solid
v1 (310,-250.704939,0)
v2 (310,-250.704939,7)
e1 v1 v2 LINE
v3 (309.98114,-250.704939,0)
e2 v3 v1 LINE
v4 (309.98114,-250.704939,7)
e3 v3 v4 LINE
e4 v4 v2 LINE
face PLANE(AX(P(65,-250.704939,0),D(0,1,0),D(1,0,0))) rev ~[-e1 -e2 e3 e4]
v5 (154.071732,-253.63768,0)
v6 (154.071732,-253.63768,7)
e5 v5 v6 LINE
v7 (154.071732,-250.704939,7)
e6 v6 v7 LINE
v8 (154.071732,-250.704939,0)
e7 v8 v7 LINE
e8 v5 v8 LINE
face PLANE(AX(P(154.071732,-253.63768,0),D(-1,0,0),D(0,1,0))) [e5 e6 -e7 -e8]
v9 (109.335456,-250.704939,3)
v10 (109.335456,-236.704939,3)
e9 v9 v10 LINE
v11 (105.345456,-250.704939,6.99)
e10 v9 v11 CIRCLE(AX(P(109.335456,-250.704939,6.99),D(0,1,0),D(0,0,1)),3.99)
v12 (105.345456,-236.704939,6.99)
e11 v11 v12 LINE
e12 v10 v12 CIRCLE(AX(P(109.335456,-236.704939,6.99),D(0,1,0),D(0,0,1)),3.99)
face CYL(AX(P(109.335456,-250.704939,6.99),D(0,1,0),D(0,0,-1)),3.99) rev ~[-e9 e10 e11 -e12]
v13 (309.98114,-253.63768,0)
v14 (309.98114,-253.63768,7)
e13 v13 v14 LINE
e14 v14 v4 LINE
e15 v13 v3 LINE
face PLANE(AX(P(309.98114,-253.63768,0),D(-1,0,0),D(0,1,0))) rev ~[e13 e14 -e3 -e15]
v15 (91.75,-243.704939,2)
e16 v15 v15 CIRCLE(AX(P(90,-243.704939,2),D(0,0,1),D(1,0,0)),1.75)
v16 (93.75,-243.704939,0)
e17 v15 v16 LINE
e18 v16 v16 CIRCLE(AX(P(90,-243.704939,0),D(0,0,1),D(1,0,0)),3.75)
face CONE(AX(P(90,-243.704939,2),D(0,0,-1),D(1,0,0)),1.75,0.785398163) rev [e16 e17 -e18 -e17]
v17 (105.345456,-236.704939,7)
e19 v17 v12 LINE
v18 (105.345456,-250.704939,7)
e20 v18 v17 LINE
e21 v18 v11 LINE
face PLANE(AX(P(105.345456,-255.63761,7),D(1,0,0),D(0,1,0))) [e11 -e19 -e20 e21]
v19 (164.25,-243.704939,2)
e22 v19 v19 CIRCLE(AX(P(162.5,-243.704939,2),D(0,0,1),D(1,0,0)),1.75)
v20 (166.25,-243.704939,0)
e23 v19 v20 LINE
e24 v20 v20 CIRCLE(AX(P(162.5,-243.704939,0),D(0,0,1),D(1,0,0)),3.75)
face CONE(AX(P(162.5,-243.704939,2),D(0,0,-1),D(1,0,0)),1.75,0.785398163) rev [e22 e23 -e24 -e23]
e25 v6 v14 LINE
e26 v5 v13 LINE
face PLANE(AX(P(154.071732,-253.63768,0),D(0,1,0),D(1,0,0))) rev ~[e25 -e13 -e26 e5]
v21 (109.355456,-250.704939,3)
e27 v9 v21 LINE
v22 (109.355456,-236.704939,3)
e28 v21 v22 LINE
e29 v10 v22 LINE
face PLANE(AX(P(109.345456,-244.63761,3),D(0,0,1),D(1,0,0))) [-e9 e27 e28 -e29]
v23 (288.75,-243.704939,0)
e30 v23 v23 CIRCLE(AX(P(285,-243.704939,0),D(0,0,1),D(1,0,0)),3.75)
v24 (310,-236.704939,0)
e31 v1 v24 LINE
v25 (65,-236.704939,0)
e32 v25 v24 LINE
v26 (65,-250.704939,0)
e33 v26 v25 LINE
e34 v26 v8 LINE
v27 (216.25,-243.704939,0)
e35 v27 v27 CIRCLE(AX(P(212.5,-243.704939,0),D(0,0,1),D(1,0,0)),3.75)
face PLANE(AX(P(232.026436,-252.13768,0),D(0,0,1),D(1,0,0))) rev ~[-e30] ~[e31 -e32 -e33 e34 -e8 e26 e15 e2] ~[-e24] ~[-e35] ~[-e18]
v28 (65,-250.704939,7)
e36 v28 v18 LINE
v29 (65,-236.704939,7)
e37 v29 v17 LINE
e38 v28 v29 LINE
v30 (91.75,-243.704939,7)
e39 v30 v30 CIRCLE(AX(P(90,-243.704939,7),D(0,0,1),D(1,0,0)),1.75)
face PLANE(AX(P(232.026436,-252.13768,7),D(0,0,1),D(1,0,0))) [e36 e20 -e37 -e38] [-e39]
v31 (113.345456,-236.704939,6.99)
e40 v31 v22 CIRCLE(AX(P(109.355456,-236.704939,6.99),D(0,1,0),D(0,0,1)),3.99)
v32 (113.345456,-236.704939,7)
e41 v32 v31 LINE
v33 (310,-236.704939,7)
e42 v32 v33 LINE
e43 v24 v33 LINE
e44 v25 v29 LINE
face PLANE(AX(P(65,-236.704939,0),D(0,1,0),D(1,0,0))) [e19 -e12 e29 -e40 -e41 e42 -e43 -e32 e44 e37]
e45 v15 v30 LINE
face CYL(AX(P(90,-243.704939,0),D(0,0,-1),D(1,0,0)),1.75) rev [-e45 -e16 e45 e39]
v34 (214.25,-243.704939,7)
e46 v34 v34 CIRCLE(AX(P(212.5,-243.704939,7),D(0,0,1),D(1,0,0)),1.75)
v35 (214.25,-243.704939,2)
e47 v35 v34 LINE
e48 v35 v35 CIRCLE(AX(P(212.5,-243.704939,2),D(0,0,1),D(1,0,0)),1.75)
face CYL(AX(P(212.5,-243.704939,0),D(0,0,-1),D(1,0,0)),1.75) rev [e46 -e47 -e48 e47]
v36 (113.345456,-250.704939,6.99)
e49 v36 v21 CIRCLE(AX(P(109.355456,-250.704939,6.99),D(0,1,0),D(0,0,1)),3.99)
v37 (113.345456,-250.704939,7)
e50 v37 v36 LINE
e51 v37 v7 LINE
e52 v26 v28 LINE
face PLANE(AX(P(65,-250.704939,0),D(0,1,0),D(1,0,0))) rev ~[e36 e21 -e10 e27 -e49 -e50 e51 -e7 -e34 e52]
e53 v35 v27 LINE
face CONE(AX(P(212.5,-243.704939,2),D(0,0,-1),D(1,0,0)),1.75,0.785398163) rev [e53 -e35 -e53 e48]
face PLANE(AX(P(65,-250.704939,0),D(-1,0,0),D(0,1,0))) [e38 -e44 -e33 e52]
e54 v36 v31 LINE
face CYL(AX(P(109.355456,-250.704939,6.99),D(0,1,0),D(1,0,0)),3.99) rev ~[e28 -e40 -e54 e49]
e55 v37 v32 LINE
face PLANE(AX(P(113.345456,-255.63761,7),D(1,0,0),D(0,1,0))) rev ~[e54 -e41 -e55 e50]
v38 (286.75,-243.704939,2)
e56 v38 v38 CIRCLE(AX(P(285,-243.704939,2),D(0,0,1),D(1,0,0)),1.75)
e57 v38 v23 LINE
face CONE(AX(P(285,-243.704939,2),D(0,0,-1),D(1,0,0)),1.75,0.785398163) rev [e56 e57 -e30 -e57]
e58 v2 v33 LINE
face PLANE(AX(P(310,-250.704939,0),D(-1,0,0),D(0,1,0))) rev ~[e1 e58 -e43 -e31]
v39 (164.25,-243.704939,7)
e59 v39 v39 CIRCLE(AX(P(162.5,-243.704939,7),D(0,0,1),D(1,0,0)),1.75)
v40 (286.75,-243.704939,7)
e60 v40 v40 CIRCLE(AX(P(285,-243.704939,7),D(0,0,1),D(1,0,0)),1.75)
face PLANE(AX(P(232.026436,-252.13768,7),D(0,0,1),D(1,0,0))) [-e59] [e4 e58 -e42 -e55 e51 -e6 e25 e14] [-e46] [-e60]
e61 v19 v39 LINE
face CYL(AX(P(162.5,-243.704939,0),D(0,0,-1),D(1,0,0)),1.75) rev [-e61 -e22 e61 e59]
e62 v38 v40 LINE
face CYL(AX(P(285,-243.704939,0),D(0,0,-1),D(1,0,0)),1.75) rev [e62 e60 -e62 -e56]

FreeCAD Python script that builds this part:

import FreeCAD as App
import Part
import Sketcher
from FreeCAD import Vector


def edges_at(feature, points):
    """Names of the edges that pass closest to the given points."""
    edges = feature.Shape.Edges
    near = lambda p: min(range(len(edges)), key=lambda i: edges[i].distToShape(Part.Vertex(*p))[0])
    return sorted({f"Edge{near(p) + 1}" for p in points})


def add_polygon(sketch, points):
    """Adds a closed chain of lines whose ends are joined by coincident constraints."""
    first, n = sketch.GeometryCount, len(points)
    for a, b in zip(points, points[1:] + points[:1]):
        sketch.addGeometry(Part.LineSegment(App.Vector(*a, 0), App.Vector(*b, 0)), False)
    for i in range(n):
        sketch.addConstraint(Sketcher.Constraint("Coincident", first + i, 2, first + (i + 1) % n, 1))

doc = App.newDocument("Part")
body = doc.addObject("PartDesign::Body", "Body")

sketch1 = body.newObject("Sketcher::SketchObject", "Sketch")
sketch1.AttachmentSupport = (doc.getObject("XY_Plane"), [""])
sketch1.MapMode = "FlatFace"
add_polygon(sketch1, [(65, -236.7), (65, -250.7), (310, -250.7), (310, -236.7)])
sketch1.addGeometry(Part.Circle(Vector(90, -243.7, 0), Vector(0, 0, 1), 1.8), False)
sketch1.addGeometry(Part.Circle(Vector(162.5, -243.7, 0), Vector(0, 0, 1), 1.8), False)
sketch1.addGeometry(Part.Circle(Vector(212.5, -243.7, 0), Vector(0, 0, 1), 1.8), False)
sketch1.addGeometry(Part.Circle(Vector(285, -243.7, 0), Vector(0, 0, 1), 1.8), False)
sketch1.addConstraint([
    Sketcher.Constraint("Vertical", 0),
    Sketcher.Constraint("Horizontal", 1),
    Sketcher.Constraint("Vertical", 2),
    Sketcher.Constraint("Horizontal", 3),
    Sketcher.Constraint("Equal", 4, 5),
    Sketcher.Constraint("Equal", 5, 6),
    Sketcher.Constraint("Equal", 6, 7),
    Sketcher.Constraint("Horizontal", 4, 3, 5, 3),
    Sketcher.Constraint("Horizontal", 5, 3, 6, 3),
    Sketcher.Constraint("Horizontal", 6, 3, 7, 3),
    Sketcher.Constraint("Diameter", 4, 3.5),
    Sketcher.Constraint("DistanceX", 1, 1, 1, 2, 245.0),
    Sketcher.Constraint("DistanceY", 0, 2, 0, 1, 14.0),
    Sketcher.Constraint("DistanceX", -1, 1, 4, 3, 90.0),
    Sketcher.Constraint("DistanceX", -1, 1, 7, 3, 285.0),
    Sketcher.Constraint("DistanceX", -1, 1, 0, 2, 65.0),
    Sketcher.Constraint("DistanceX", 5, 3, 6, 3, 50.0),
    Sketcher.Constraint("DistanceY", 0, 2, 4, 3, 7.0),
    Sketcher.Constraint("DistanceX", -1, 1, 5, 3, 162.5),
    Sketcher.Constraint("DistanceY", 4, 3, -1, 1, 243.704939),
])
pad1 = body.newObject("PartDesign::Pad", "Pad")
pad1.Profile = sketch1
pad1.Length = 7
doc.recompute()

chamfer = body.newObject("PartDesign::Chamfer", "Chamfer")
chamfer.Base = (pad1, edges_at(pad1, [
    (283.25, -243.705, 0),
    (210.75, -243.705, 0),
    (160.75, -243.705, 0),
    (88.25, -243.705, 0),
]))
chamfer.Size = 2

sketch2 = body.newObject("Sketcher::SketchObject", "Sketch001")
sketch2.AttachmentSupport = (doc.getObject("XY_Plane"), [""])
sketch2.MapMode = "FlatFace"
add_polygon(sketch2, [(154.1, -250.6), (154.1, -253.6), (310, -253.6), (310, -250.6)])
sketch2.addConstraint([
    Sketcher.Constraint("Vertical", 0),
    Sketcher.Constraint("Horizontal", 1),
    Sketcher.Constraint("Vertical", 2),
    Sketcher.Constraint("Horizontal", 3),
    Sketcher.Constraint("DistanceY", 0, 2, 0, 1, 3.0),
    Sketcher.Constraint("DistanceX", 1, 1, 1, 2, 155.909408),
    Sketcher.Constraint("DistanceX", -1, 1, 0, 2, 154.071732),
    Sketcher.Constraint("DistanceY", 0, 2, -1, 1, 253.63768),
])
pad2 = body.newObject("PartDesign::Pad", "Pad001")
pad2.Profile = sketch2
pad2.Length = 7

sketch3 = body.newObject("Sketcher::SketchObject", "Sketch002")
sketch3.AttachmentSupport = (doc.getObject("XY_Plane"), [""])
sketch3.MapMode = "FlatFace"
sketch3.AttachmentOffset = App.Placement(Vector(0, 0, 7), App.Rotation())
add_polygon(sketch3, [(105, -234), (105, -256), (113, -256), (113, -234)])
sketch3.addConstraint([
    Sketcher.Constraint("Vertical", 0),
    Sketcher.Constraint("Horizontal", 1),
    Sketcher.Constraint("Vertical", 2),
    Sketcher.Constraint("Horizontal", 3),
    Sketcher.Constraint("DistanceX", 1, 1, 1, 2, 8.0),
    Sketcher.Constraint("DistanceY", 0, 2, 0, 1, 22.0),
    Sketcher.Constraint("DistanceY", 0, 2, -1, 1, 255.63761),
    Sketcher.Constraint("DistanceX", -1, 1, 0, 2, 105.345456),
])
pocket1 = body.newObject("PartDesign::Pocket", "Pocket")
pocket1.Profile = sketch3
pocket1.Length = 4
doc.recompute()

fillet = body.newObject("PartDesign::Fillet", "Fillet")
fillet.Base = (pocket1, edges_at(pocket1, [(113.345, -243.705, 3), (105.345, -243.705, 3)]))
fillet.Radius = 3.99

doc.recompute()
